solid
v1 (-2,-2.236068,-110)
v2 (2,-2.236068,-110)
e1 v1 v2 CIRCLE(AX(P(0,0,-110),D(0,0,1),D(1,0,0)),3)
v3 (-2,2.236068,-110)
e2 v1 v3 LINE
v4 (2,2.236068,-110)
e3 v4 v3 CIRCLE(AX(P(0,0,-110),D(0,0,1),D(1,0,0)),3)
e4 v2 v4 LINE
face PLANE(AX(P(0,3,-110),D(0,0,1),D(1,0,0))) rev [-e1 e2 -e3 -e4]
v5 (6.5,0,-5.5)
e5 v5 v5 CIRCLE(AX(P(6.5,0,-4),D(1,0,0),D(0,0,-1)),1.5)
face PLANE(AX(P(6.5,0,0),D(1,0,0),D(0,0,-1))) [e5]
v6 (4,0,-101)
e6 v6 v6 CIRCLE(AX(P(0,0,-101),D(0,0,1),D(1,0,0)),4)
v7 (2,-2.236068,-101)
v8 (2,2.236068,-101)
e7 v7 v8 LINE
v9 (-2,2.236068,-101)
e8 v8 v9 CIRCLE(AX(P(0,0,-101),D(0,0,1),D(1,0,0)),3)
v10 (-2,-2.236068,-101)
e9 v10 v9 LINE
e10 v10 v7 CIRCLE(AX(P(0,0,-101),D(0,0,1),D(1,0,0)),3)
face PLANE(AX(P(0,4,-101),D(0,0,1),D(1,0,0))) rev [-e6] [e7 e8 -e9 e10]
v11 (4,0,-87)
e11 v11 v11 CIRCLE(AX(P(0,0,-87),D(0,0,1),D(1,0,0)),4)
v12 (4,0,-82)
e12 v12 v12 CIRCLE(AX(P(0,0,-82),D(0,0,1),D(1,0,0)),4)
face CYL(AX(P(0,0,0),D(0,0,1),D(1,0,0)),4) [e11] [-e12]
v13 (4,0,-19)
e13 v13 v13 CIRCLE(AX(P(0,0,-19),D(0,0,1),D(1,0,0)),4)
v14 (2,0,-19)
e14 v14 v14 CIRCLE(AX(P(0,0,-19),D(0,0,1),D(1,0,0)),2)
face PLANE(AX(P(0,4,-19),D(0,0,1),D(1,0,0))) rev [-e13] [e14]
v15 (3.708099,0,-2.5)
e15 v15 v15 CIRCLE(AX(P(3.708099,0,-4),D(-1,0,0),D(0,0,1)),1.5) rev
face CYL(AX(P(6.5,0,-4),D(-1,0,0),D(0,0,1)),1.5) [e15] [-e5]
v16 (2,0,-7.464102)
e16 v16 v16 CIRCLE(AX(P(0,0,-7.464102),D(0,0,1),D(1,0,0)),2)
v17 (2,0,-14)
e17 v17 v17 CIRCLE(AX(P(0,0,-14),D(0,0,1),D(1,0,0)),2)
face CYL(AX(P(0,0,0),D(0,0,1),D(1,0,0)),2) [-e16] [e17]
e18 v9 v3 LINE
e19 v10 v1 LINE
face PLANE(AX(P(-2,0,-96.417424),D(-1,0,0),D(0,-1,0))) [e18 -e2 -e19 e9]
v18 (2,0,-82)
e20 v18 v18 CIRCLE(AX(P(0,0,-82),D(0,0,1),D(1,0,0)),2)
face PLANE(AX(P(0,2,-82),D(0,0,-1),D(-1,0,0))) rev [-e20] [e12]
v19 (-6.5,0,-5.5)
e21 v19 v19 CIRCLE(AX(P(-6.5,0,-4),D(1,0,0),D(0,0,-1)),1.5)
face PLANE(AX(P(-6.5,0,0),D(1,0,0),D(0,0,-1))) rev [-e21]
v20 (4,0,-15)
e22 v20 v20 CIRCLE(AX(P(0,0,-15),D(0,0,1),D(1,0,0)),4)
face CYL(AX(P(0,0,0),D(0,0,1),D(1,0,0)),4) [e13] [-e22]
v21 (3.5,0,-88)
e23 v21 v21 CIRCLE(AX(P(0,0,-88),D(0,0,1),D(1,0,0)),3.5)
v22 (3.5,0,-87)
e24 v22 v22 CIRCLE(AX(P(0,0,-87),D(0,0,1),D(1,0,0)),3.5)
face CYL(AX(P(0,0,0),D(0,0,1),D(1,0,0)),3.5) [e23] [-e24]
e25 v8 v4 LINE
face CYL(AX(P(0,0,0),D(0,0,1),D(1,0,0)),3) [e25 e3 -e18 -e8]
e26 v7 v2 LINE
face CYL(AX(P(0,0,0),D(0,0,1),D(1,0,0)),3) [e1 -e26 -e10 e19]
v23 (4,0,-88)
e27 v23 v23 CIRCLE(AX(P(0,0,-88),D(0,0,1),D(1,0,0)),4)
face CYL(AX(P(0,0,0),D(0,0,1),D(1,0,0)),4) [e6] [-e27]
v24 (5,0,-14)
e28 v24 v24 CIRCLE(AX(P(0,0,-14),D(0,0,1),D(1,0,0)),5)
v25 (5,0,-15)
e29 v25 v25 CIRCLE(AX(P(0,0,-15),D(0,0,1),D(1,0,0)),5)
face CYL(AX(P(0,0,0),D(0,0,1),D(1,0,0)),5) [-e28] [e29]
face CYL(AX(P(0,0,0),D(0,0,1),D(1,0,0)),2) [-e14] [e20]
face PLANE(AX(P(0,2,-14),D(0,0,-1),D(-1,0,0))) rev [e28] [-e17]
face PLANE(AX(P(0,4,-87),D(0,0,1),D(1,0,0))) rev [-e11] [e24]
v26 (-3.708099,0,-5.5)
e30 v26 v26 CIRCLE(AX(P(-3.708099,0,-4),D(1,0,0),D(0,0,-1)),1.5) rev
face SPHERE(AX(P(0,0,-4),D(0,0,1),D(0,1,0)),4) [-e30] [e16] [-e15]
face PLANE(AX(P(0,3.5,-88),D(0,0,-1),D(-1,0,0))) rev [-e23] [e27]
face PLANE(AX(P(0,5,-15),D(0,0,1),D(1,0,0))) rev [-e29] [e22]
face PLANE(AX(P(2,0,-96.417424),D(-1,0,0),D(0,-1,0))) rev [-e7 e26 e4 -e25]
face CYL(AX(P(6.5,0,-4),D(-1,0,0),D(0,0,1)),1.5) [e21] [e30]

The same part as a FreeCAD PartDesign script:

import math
import FreeCAD as App
import Part
import Sketcher

doc = App.newDocument("Part")
body = doc.addObject("PartDesign::Body", "Body")

# Sketch on YZ plane
sketch1 = doc.addObject("Sketcher::SketchObject", "Sketch")
body.addObject(sketch1)
sketch1.AttachmentSupport = (doc.YZ_Plane, [""])
sketch1.MapMode = "FlatFace"
sketch1.addGeometry([
    Part.LineSegment(App.Vector(2, -14, 0), App.Vector(2, -7.5, 0)),  # 0
    Part.ArcOfCircle(Part.Circle(App.Vector(0, -4, 0), App.Vector(0, 0, 1), 4), math.radians(-60), math.radians(90)),  # 1
    Part.LineSegment(App.Vector(0, 0, 0), App.Vector(0, -110, 0)),  # 2
    Part.LineSegment(App.Vector(0, -110, 0), App.Vector(3, -110, 0)),  # 3
    Part.LineSegment(App.Vector(3, -110, 0), App.Vector(3, -101, 0)),  # 4
    Part.LineSegment(App.Vector(3, -101, 0), App.Vector(4, -101, 0)),  # 5
    Part.LineSegment(App.Vector(4, -101, 0), App.Vector(4, -88, 0)),  # 6
    Part.LineSegment(App.Vector(4, -88, 0), App.Vector(3.5, -88, 0)),  # 7
    Part.LineSegment(App.Vector(3.5, -88, 0), App.Vector(3.5, -87, 0)),  # 8
    Part.LineSegment(App.Vector(3.5, -87, 0), App.Vector(4, -87, 0)),  # 9
    Part.LineSegment(App.Vector(4, -87, 0), App.Vector(4, -82, 0)),  # 10
    Part.LineSegment(App.Vector(4, -82, 0), App.Vector(2, -82, 0)),  # 11
    Part.LineSegment(App.Vector(2, -82, 0), App.Vector(2, -19, 0)),  # 12
    Part.LineSegment(App.Vector(2, -19, 0), App.Vector(4, -19, 0)),  # 13
    Part.LineSegment(App.Vector(4, -19, 0), App.Vector(4, -15, 0)),  # 14
    Part.LineSegment(App.Vector(4, -15, 0), App.Vector(5, -15, 0)),  # 15
    Part.LineSegment(App.Vector(5, -15, 0), App.Vector(5, -14, 0)),  # 16
    Part.LineSegment(App.Vector(5, -14, 0), App.Vector(2, -14, 0)),  # 17
], False)
sketch1.addConstraint([
    Sketcher.Constraint("Coincident", 0, 2, 1, 1),
    Sketcher.Constraint("Coincident", 1, 2, 2, 1),
    Sketcher.Constraint("Coincident", 2, 2, 3, 1),
    Sketcher.Constraint("Coincident", 3, 2, 4, 1),
    Sketcher.Constraint("Coincident", 4, 2, 5, 1),
    Sketcher.Constraint("Coincident", 5, 2, 6, 1),
    Sketcher.Constraint("Coincident", 6, 2, 7, 1),
    Sketcher.Constraint("Coincident", 7, 2, 8, 1),
    Sketcher.Constraint("Coincident", 8, 2, 9, 1),
    Sketcher.Constraint("Coincident", 9, 2, 10, 1),
    Sketcher.Constraint("Coincident", 10, 2, 11, 1),
    Sketcher.Constraint("Coincident", 11, 2, 12, 1),
    Sketcher.Constraint("Coincident", 12, 2, 13, 1),
    Sketcher.Constraint("Coincident", 13, 2, 14, 1),
    Sketcher.Constraint("Coincident", 14, 2, 15, 1),
    Sketcher.Constraint("Coincident", 15, 2, 16, 1),
    Sketcher.Constraint("Coincident", 16, 2, 17, 1),
    Sketcher.Constraint("Coincident", 17, 2, 0, 1),
    Sketcher.Constraint("Vertical", 0),
    Sketcher.Constraint("Vertical", 2),
    Sketcher.Constraint("Horizontal", 3),
    Sketcher.Constraint("Vertical", 4),
    Sketcher.Constraint("Horizontal", 5),
    Sketcher.Constraint("Vertical", 6),
    Sketcher.Constraint("Horizontal", 7),
    Sketcher.Constraint("Vertical", 8),
    Sketcher.Constraint("Horizontal", 9),
    Sketcher.Constraint("Vertical", 10),
    Sketcher.Constraint("Horizontal", 11),
    Sketcher.Constraint("Vertical", 12),
    Sketcher.Constraint("Horizontal", 13),
    Sketcher.Constraint("Vertical", 14),
    Sketcher.Constraint("Horizontal", 15),
    Sketcher.Constraint("Vertical", 16),
    Sketcher.Constraint("Horizontal", 17),
    Sketcher.Constraint("Coincident", 1, 2, -1, 1),
    Sketcher.Constraint("PointOnObject", 1, 3, -2),
    Sketcher.Constraint("Vertical", 6, 2, 9, 2),
    Sketcher.Constraint("Vertical", 0, 2, 11, 2),
    Sketcher.Constraint("Vertical", 10, 2, 13, 2),
    Sketcher.Constraint("Equal", 5, 15),
    Sketcher.Constraint("Equal", 3, 17),
    Sketcher.Constraint("Equal", 15, 8),
    Sketcher.Constraint("Equal", 8, 16),
    Sketcher.Constraint("Radius", 1, 4.0),
    Sketcher.Constraint("DistanceX", 3, 1, 3, 2, 3.0),
    Sketcher.Constraint("DistanceX", 5, 1, 5, 2, 1.0),
    Sketcher.Constraint("DistanceY", 2, 2, 2, 1, 110.0),
    Sketcher.Constraint("DistanceY", 4, 1, 4, 2, 9.0),
    Sketcher.Constraint("DistanceY", 6, 1, 6, 2, 13.0),
    Sketcher.Constraint("DistanceY", 10, 1, 10, 2, 5.0),
    Sketcher.Constraint("DistanceY", 12, 1, 12, 2, 63.0),
    Sketcher.Constraint("DistanceY", 14, 1, 14, 2, 4.0),
    Sketcher.Constraint("DistanceX", 7, 2, 7, 1, 0.5),
])
revolution = doc.addObject("PartDesign::Revolution", "Revolution")
body.addObject(revolution)
revolution.Profile = sketch1
revolution.ReferenceAxis = (sketch1, ["V_Axis"])
revolution.Angle = 360

# Sketch on XY plane
sketch2 = doc.addObject("Sketcher::SketchObject", "Sketch001")
body.addObject(sketch2)
sketch2.AttachmentSupport = (doc.XY_Plane, [""])
sketch2.MapMode = "FlatFace"
sketch2.AttachmentOffset = App.Placement(App.Vector(0, 0, -110), App.Rotation())
sketch2.addGeometry([
    Part.ArcOfCircle(Part.Circle(App.Vector(0, 0, 0), App.Vector(0, 0, 1), 3), math.radians(-48), math.radians(48)),  # 0
    Part.LineSegment(App.Vector(2, -2.2, 0), App.Vector(2, 2.2, 0)),  # 1
    Part.LineSegment(App.Vector(-2, 2.2, 0), App.Vector(-2, -2.2, 0)),  # 2
    Part.ArcOfCircle(Part.Circle(App.Vector(0, 0, 0), App.Vector(0, 0, 1), 3), math.radians(180), math.radians(228)),  # 3
    Part.ArcOfCircle(Part.Circle(App.Vector(0, 0, 0), App.Vector(0, 0, 1), 3), math.radians(132), math.radians(180)),  # 4
], False)
sketch2.addConstraint([
    Sketcher.Constraint("Coincident", 0, 1, 1, 1),
    Sketcher.Constraint("Coincident", 1, 2, 0, 2),
    Sketcher.Constraint("Coincident", 2, 2, 3, 2),
    Sketcher.Constraint("Tangent", 3, 1, 4, 2),
    Sketcher.Constraint("Coincident", 4, 1, 2, 1),
    Sketcher.Constraint("Vertical", 1),
    Sketcher.Constraint("Vertical", 2),
    Sketcher.Constraint("Coincident", 0, 3, -1, 1),
    Sketcher.Constraint("Coincident", 3, 3, -1, 1),
    Sketcher.Constraint("Equal", 0, 3),
    Sketcher.Constraint("Equal", 3, 4),
    Sketcher.Constraint("PointOnObject", 3, 1, -1),
    Sketcher.Constraint("Horizontal", 0, 1, 2, 2),
    Sketcher.Constraint("Radius", 0, 3.0),
    Sketcher.Constraint("DistanceX", -1, 1, 0, 1, 2.0),
])
pocket1 = doc.addObject("PartDesign::Pocket", "Pocket")
body.addObject(pocket1)
pocket1.Profile = sketch2
pocket1.Length = 9
pocket1.Reversed = True

# Sketch on YZ plane
sketch3 = doc.addObject("Sketcher::SketchObject", "Sketch002")
body.addObject(sketch3)
sketch3.AttachmentSupport = (doc.YZ_Plane, [""])
sketch3.MapMode = "FlatFace"
sketch3.addGeometry(Part.Circle(App.Vector(0, -4, 0), App.Vector(0, 0, 1), 1.5), False)
sketch3.addConstraint([
    Sketcher.Constraint("PointOnObject", 0, 3, -2),
    Sketcher.Constraint("Diameter", 0, 3.0),
    Sketcher.Constraint("DistanceY", 0, 3, -1, 1, 4.0),
])
pad1 = doc.addObject("PartDesign::Pad", "Pad")
body.addObject(pad1)
pad1.Profile = sketch3
pad1.Length = 13
pad1.Midplane = True

doc.recompute()
